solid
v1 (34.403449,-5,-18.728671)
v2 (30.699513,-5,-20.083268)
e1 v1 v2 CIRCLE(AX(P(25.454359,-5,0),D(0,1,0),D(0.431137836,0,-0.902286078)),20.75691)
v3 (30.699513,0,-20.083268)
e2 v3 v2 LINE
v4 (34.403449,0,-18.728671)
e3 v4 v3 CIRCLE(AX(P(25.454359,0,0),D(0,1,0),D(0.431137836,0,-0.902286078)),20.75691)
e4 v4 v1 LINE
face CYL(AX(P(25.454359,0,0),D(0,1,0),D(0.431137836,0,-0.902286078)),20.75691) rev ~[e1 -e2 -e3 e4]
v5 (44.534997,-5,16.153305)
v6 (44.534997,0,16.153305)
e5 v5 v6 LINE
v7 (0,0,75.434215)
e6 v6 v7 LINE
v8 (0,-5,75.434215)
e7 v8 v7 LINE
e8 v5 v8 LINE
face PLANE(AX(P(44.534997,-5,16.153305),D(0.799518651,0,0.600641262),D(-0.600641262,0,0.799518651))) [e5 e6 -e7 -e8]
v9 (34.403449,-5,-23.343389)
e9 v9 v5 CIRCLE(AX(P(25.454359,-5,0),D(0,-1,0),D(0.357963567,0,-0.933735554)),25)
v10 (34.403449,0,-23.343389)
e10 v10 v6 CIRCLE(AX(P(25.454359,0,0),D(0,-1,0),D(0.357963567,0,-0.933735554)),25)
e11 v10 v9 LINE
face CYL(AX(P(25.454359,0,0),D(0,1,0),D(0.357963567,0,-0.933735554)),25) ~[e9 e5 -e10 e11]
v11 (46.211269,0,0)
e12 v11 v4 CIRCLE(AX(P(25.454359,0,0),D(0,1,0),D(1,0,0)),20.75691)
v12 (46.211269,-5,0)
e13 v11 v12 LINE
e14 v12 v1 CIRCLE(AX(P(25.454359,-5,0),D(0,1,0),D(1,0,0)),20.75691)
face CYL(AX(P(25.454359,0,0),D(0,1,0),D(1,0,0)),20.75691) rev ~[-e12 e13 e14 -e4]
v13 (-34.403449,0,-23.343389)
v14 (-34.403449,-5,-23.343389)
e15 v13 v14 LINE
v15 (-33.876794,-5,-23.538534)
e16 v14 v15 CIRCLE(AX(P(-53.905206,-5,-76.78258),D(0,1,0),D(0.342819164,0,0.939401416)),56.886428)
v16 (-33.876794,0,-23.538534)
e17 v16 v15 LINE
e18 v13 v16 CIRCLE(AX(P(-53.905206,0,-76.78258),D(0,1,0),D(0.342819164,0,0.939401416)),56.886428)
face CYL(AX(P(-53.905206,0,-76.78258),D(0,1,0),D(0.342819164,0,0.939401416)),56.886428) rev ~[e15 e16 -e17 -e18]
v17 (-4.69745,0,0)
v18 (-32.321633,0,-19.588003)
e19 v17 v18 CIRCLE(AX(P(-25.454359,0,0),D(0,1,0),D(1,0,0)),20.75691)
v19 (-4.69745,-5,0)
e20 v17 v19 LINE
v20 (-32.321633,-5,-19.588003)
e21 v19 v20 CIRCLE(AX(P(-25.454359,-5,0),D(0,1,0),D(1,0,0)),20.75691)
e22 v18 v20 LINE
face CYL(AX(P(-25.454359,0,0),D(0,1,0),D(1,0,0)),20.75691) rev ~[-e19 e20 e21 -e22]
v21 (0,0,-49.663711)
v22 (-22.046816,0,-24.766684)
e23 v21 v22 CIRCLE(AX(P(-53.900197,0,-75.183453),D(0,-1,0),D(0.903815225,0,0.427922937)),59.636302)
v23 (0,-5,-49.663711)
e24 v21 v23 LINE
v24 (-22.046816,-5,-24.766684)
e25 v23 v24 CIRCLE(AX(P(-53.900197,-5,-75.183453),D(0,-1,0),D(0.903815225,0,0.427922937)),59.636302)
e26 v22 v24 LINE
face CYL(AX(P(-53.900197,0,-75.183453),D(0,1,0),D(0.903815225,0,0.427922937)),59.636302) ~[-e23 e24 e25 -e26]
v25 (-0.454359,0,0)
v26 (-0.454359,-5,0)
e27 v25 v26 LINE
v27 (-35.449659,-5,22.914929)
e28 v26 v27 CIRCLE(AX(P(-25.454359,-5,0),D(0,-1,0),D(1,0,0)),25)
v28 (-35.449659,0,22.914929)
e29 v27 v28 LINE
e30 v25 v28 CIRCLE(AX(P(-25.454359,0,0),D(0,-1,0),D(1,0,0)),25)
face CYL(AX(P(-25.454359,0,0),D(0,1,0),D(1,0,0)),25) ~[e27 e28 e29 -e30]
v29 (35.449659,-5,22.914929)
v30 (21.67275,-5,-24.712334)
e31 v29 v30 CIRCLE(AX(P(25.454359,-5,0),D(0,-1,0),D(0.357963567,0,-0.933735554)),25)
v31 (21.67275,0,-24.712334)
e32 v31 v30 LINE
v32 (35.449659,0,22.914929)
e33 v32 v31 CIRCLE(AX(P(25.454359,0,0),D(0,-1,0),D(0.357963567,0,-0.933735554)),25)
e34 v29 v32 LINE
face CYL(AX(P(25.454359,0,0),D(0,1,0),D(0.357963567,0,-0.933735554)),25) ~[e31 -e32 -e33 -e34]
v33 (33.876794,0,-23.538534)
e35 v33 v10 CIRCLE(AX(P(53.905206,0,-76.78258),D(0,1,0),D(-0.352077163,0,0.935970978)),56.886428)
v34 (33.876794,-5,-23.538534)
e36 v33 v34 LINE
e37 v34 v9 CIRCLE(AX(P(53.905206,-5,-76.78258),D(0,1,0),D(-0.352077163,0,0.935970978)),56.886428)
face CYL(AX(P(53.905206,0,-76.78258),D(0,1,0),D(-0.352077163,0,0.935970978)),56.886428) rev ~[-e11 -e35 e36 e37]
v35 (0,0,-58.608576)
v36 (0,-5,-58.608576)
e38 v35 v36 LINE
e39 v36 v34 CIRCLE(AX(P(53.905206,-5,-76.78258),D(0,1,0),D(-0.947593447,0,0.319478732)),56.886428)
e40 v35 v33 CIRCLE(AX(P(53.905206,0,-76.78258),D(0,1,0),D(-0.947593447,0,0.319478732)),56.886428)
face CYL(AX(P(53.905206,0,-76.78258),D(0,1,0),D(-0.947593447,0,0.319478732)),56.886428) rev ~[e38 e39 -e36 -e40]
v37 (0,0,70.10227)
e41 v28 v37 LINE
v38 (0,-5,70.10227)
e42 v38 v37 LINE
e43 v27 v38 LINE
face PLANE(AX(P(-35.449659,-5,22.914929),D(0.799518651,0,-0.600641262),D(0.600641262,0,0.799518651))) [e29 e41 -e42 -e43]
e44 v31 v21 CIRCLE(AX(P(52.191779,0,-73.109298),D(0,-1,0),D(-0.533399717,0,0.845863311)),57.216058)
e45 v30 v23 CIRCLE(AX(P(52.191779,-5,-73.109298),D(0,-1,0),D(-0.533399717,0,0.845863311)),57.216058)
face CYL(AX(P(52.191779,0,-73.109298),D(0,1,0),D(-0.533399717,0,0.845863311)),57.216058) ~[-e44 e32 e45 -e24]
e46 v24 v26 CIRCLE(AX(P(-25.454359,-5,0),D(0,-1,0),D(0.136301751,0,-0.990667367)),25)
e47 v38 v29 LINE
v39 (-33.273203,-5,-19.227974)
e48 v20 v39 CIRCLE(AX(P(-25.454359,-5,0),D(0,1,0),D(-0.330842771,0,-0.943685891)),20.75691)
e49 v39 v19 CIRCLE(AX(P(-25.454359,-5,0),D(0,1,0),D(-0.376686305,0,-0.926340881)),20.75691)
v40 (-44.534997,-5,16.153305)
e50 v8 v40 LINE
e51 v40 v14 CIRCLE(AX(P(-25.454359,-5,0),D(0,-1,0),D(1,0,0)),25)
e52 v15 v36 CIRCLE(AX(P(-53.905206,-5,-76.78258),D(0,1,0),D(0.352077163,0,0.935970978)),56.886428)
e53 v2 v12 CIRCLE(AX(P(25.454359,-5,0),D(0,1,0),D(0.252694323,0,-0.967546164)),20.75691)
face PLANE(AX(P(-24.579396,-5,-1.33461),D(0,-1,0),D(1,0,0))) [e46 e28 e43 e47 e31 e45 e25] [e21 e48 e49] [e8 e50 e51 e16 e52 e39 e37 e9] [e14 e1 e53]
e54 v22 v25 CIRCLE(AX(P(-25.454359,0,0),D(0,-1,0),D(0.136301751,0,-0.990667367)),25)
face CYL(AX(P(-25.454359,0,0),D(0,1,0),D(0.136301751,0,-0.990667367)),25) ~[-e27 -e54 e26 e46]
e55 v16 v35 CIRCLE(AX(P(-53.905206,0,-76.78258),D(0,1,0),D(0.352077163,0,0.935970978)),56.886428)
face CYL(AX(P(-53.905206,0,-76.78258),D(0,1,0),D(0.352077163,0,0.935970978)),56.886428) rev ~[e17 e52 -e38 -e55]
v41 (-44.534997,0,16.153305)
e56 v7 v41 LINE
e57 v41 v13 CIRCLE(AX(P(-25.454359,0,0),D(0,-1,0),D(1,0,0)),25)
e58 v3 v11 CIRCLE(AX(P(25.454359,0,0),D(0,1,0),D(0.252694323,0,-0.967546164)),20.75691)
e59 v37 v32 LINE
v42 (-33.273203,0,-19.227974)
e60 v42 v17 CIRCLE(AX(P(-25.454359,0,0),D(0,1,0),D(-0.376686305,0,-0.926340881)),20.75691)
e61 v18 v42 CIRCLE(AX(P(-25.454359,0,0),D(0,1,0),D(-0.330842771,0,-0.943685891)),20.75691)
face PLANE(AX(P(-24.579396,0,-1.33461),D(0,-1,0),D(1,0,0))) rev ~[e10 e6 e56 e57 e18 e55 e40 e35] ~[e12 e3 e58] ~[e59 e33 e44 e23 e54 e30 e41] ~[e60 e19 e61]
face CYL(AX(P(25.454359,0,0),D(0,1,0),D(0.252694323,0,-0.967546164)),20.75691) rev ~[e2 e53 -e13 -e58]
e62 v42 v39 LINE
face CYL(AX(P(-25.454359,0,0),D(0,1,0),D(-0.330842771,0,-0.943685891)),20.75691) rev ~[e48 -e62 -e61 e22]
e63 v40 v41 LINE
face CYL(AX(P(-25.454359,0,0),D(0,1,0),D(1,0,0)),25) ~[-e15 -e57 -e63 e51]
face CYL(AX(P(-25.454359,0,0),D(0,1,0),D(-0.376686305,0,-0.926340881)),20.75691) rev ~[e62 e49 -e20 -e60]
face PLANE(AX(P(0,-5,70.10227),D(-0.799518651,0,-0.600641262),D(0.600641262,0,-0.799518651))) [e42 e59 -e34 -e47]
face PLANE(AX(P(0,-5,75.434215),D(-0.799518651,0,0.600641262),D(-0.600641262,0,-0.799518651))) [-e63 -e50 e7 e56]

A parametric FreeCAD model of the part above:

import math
import FreeCAD as App
import Part
import Sketcher
from FreeCAD import Vector

doc = App.newDocument("Part")
params = doc.addObject("Spreadsheet::Sheet", "Params")
for row, (alias, value) in enumerate([
    ("sketch1_radius", "25 mm"),
    ("pad1_length", "5 mm"),
    ("sketch2_radius", "25 mm"),
    ("pad2_length", "5 mm"),
], start=1):
    params.set(f"A{row}", alias)
    params.set(f"B{row}", "=" + value)
    params.setAlias(f"B{row}", alias)

body = doc.addObject("PartDesign::Body", "Body")

# Sketch on XZ plane
sketch1 = doc.addObject("Sketcher::SketchObject", "Sketch")
body.addObject(sketch1)
sketch1.AttachmentSupport = (doc.XZ_Plane, [""])
sketch1.MapMode = "FlatFace"
sketch1.addGeometry([
    Part.ArcOfCircle(Part.Circle(Vector(-25.5, 0, 0), Vector(0, 0, 1), 25), math.radians(-82), math.radians(0)),  # 0
    Part.ArcOfCircle(Part.Circle(Vector(-25.5, 0, 0), Vector(0, 0, 1), 25), math.radians(0), math.radians(249)),  # 1
    Part.ArcOfCircle(Part.Circle(Vector(-53.9, -76.8, 0), Vector(0, 0, 1), 56.9), math.radians(69.39), math.radians(69.95)),  # 2
    Part.ArcOfCircle(Part.Circle(Vector(-53.9, -76.8, 0), Vector(0, 0, 1), 56.9), math.radians(19), math.radians(69)),  # 3
    Part.ArcOfCircle(Part.Circle(Vector(53.9, -76.8, 0), Vector(0, 0, 1), 56.9), math.radians(111), math.radians(161)),  # 4
    Part.ArcOfCircle(Part.Circle(Vector(53.9, -76.8, 0), Vector(0, 0, 1), 56.9), math.radians(110.05), math.radians(110.61)),  # 5
    Part.ArcOfCircle(Part.Circle(Vector(25.5, 0, 0), Vector(0, 0, 1), 25), math.radians(-69), math.radians(261)),  # 6
    Part.ArcOfCircle(Part.Circle(Vector(52.2, -73.1, 0), Vector(0, 0, 1), 57.2), math.radians(122), math.radians(156)),  # 7
    Part.ArcOfCircle(Part.Circle(Vector(-53.9, -75.2, 0), Vector(0, 0, 1), 59.6), math.radians(25), math.radians(58)),  # 8
    Part.ArcOfCircle(Part.Circle(Vector(-25.5, 0, 0), Vector(0, 0, 1), 20.8), math.radians(0), math.radians(248)),  # 9
    Part.ArcOfCircle(Part.Circle(Vector(-25.5, 0, 0), Vector(0, 0, 1), 20.8), math.radians(-109), math.radians(0)),  # 10
    Part.ArcOfCircle(Part.Circle(Vector(-25.5, 0, 0), Vector(0, 0, 1), 20.8), math.radians(-112.13), math.radians(-109.32)),  # 11
    Part.ArcOfCircle(Part.Circle(Vector(25.5, 0, 0), Vector(0, 0, 1), 20.8), math.radians(-75.36), math.radians(-64.46)),  # 12
    Part.ArcOfCircle(Part.Circle(Vector(25.5, 0, 0), Vector(0, 0, 1), 20.8), math.radians(0), math.radians(285)),  # 13
    Part.ArcOfCircle(Part.Circle(Vector(25.5, 0, 0), Vector(0, 0, 1), 20.8), math.radians(-64), math.radians(0)),  # 14
], False)
sketch1.addConstraint([
    Sketcher.Constraint("Tangent", 0, 2, 1, 1),
    Sketcher.Constraint("Coincident", 1, 2, 2, 2),
    Sketcher.Constraint("Tangent", 2, 1, 3, 2),
    Sketcher.Constraint("Coincident", 3, 1, 4, 2),
    Sketcher.Constraint("Tangent", 4, 1, 5, 2),
    Sketcher.Constraint("Coincident", 5, 1, 6, 1),
    Sketcher.Constraint("Coincident", 6, 2, 7, 1),
    Sketcher.Constraint("Coincident", 7, 2, 8, 1),
    Sketcher.Constraint("Coincident", 8, 2, 0, 1),
    Sketcher.Constraint("Tangent", 9, 1, 10, 2),
    Sketcher.Constraint("Tangent", 10, 1, 11, 2),
    Sketcher.Constraint("Coincident", 11, 1, 9, 2),
    Sketcher.Constraint("Tangent", 12, 1, 13, 2),
    Sketcher.Constraint("Tangent", 13, 1, 14, 2),
    Sketcher.Constraint("Tangent", 14, 1, 12, 2),
    Sketcher.Constraint("Coincident", 9, 3, 0, 3),
    Sketcher.Constraint("Coincident", 12, 3, 6, 3),
    Sketcher.Constraint("Equal", 0, 1),
    Sketcher.Constraint("Equal", 2, 3),
    Sketcher.Constraint("Equal", 3, 4),
    Sketcher.Constraint("Equal", 4, 5),
    Sketcher.Constraint("Equal", 1, 6),
    Sketcher.Constraint("Equal", 10, 11),
    Sketcher.Constraint("Equal", 11, 12),
    Sketcher.Constraint("Symmetric", 0, 3, 6, 3, -1, 1),
    Sketcher.Constraint("Symmetric", 2, 3, 4, 3, -2),
    Sketcher.Constraint("PointOnObject", 0, 3, -1),
    Sketcher.Constraint("PointOnObject", 0, 2, -1),
    Sketcher.Constraint("PointOnObject", 7, 2, -2),
    Sketcher.Constraint("PointOnObject", 9, 1, -1),
    Sketcher.Constraint("PointOnObject", 13, 1, -1),
    Sketcher.Constraint("Horizontal", 2, 1, 4, 1),
    Sketcher.Constraint("Vertical", 5, 1, 14, 1),
    Sketcher.Constraint("Radius", 0, 25.0),
    Sketcher.Constraint("Radius", 8, 59.636302),
    Sketcher.Constraint("Radius", 7, 57.216058),
    Sketcher.Constraint("Radius", 9, 20.75691),
    Sketcher.Constraint("Radius", 2, 56.886428),
    Sketcher.Constraint("DistanceY", 6, 2, 4, 1, 1.173799),
    Sketcher.Constraint("DistanceX", 6, 2, 5, 1, 12.730699),
    Sketcher.Constraint("DistanceX", 0, 3, -1, 1, 25.454359),
    Sketcher.Constraint("DistanceY", 2, 3, -1, 1, 76.78258),
    Sketcher.Constraint("DistanceX", -1, 1, 7, 3, 52.191779),
    Sketcher.Constraint("DistanceX", 1, 2, -1, 1, 34.403449),
    Sketcher.Constraint("DistanceY", 12, 1, -1, 1, 20.083268),
    Sketcher.Constraint("DistanceX", 3, 3, 8, 3, 0.005009),
    Sketcher.Constraint("DistanceX", 2, 1, 10, 1, 1.555161),
    Sketcher.Constraint("DistanceX", 11, 1, 10, 1, 0.95157),
])
sketch1.setExpression("Constraints[33]", "Params.sketch1_radius")
pad1 = doc.addObject("PartDesign::Pad", "Pad")
body.addObject(pad1)
pad1.Profile = sketch1
pad1.setExpression("Length", "Params.pad1_length")

# Sketch on XZ plane
sketch2 = doc.addObject("Sketcher::SketchObject", "Sketch001")
body.addObject(sketch2)
sketch2.AttachmentSupport = (doc.XZ_Plane, [""])
sketch2.MapMode = "FlatFace"
sketch2.AttachmentOffset = App.Placement(Vector(0, 0, 5), App.Rotation())
sketch2.addGeometry([
    Part.LineSegment(Vector(0, 75, 0), Vector(-45, 16, 0)),  # 0
    Part.ArcOfCircle(Part.Circle(Vector(-25, 0, 0), Vector(0, 0, 1), 25), math.radians(114), math.radians(140)),  # 1
    Part.LineSegment(Vector(-35, 23, 0), Vector(0, 70, 0)),  # 2
    Part.LineSegment(Vector(0, 70, 0), Vector(35, 23, 0)),  # 3
    Part.ArcOfCircle(Part.Circle(Vector(25, 0, 0), Vector(0, 0, 1), 25), math.radians(40), math.radians(66)),  # 4
    Part.LineSegment(Vector(45, 16, 0), Vector(0, 75, 0)),  # 5
], False)
sketch2.addConstraint([
    Sketcher.Constraint("Coincident", 0, 2, 1, 2),
    Sketcher.Constraint("Coincident", 1, 1, 2, 1),
    Sketcher.Constraint("Coincident", 2, 2, 3, 1),
    Sketcher.Constraint("Coincident", 3, 2, 4, 2),
    Sketcher.Constraint("Coincident", 4, 1, 5, 1),
    Sketcher.Constraint("Coincident", 5, 2, 0, 1),
    Sketcher.Constraint("Equal", 1, 4),
    Sketcher.Constraint("Symmetric", 1, 3, 4, 3, -1, 1),
    Sketcher.Constraint("Symmetric", 1, 1, 3, 2, -2),
    Sketcher.Constraint("PointOnObject", 2, 2, -2),
    Sketcher.Constraint("PointOnObject", 5, 2, -2),
    Sketcher.Constraint("Parallel", 0, 2),
    Sketcher.Constraint("Parallel", 3, 5),
    Sketcher.Constraint("Radius", 1, 25.0),
    Sketcher.Constraint("DistanceX", 1, 1, 1, 3, 9.9953),
    Sketcher.Constraint("Distance", 0, 74.14575),
    Sketcher.Constraint("DistanceX", 1, 3, -1, 1, 25.454359),
    Sketcher.Constraint("DistanceY", -1, 1, 2, 2, 70.10227),
])
sketch2.setExpression("Constraints[13]", "Params.sketch2_radius")
pad2 = doc.addObject("PartDesign::Pad", "Pad001")
body.addObject(pad2)
pad2.Profile = sketch2
pad2.setExpression("Length", "Params.pad2_length")
pad2.Reversed = True

doc.recompute()
